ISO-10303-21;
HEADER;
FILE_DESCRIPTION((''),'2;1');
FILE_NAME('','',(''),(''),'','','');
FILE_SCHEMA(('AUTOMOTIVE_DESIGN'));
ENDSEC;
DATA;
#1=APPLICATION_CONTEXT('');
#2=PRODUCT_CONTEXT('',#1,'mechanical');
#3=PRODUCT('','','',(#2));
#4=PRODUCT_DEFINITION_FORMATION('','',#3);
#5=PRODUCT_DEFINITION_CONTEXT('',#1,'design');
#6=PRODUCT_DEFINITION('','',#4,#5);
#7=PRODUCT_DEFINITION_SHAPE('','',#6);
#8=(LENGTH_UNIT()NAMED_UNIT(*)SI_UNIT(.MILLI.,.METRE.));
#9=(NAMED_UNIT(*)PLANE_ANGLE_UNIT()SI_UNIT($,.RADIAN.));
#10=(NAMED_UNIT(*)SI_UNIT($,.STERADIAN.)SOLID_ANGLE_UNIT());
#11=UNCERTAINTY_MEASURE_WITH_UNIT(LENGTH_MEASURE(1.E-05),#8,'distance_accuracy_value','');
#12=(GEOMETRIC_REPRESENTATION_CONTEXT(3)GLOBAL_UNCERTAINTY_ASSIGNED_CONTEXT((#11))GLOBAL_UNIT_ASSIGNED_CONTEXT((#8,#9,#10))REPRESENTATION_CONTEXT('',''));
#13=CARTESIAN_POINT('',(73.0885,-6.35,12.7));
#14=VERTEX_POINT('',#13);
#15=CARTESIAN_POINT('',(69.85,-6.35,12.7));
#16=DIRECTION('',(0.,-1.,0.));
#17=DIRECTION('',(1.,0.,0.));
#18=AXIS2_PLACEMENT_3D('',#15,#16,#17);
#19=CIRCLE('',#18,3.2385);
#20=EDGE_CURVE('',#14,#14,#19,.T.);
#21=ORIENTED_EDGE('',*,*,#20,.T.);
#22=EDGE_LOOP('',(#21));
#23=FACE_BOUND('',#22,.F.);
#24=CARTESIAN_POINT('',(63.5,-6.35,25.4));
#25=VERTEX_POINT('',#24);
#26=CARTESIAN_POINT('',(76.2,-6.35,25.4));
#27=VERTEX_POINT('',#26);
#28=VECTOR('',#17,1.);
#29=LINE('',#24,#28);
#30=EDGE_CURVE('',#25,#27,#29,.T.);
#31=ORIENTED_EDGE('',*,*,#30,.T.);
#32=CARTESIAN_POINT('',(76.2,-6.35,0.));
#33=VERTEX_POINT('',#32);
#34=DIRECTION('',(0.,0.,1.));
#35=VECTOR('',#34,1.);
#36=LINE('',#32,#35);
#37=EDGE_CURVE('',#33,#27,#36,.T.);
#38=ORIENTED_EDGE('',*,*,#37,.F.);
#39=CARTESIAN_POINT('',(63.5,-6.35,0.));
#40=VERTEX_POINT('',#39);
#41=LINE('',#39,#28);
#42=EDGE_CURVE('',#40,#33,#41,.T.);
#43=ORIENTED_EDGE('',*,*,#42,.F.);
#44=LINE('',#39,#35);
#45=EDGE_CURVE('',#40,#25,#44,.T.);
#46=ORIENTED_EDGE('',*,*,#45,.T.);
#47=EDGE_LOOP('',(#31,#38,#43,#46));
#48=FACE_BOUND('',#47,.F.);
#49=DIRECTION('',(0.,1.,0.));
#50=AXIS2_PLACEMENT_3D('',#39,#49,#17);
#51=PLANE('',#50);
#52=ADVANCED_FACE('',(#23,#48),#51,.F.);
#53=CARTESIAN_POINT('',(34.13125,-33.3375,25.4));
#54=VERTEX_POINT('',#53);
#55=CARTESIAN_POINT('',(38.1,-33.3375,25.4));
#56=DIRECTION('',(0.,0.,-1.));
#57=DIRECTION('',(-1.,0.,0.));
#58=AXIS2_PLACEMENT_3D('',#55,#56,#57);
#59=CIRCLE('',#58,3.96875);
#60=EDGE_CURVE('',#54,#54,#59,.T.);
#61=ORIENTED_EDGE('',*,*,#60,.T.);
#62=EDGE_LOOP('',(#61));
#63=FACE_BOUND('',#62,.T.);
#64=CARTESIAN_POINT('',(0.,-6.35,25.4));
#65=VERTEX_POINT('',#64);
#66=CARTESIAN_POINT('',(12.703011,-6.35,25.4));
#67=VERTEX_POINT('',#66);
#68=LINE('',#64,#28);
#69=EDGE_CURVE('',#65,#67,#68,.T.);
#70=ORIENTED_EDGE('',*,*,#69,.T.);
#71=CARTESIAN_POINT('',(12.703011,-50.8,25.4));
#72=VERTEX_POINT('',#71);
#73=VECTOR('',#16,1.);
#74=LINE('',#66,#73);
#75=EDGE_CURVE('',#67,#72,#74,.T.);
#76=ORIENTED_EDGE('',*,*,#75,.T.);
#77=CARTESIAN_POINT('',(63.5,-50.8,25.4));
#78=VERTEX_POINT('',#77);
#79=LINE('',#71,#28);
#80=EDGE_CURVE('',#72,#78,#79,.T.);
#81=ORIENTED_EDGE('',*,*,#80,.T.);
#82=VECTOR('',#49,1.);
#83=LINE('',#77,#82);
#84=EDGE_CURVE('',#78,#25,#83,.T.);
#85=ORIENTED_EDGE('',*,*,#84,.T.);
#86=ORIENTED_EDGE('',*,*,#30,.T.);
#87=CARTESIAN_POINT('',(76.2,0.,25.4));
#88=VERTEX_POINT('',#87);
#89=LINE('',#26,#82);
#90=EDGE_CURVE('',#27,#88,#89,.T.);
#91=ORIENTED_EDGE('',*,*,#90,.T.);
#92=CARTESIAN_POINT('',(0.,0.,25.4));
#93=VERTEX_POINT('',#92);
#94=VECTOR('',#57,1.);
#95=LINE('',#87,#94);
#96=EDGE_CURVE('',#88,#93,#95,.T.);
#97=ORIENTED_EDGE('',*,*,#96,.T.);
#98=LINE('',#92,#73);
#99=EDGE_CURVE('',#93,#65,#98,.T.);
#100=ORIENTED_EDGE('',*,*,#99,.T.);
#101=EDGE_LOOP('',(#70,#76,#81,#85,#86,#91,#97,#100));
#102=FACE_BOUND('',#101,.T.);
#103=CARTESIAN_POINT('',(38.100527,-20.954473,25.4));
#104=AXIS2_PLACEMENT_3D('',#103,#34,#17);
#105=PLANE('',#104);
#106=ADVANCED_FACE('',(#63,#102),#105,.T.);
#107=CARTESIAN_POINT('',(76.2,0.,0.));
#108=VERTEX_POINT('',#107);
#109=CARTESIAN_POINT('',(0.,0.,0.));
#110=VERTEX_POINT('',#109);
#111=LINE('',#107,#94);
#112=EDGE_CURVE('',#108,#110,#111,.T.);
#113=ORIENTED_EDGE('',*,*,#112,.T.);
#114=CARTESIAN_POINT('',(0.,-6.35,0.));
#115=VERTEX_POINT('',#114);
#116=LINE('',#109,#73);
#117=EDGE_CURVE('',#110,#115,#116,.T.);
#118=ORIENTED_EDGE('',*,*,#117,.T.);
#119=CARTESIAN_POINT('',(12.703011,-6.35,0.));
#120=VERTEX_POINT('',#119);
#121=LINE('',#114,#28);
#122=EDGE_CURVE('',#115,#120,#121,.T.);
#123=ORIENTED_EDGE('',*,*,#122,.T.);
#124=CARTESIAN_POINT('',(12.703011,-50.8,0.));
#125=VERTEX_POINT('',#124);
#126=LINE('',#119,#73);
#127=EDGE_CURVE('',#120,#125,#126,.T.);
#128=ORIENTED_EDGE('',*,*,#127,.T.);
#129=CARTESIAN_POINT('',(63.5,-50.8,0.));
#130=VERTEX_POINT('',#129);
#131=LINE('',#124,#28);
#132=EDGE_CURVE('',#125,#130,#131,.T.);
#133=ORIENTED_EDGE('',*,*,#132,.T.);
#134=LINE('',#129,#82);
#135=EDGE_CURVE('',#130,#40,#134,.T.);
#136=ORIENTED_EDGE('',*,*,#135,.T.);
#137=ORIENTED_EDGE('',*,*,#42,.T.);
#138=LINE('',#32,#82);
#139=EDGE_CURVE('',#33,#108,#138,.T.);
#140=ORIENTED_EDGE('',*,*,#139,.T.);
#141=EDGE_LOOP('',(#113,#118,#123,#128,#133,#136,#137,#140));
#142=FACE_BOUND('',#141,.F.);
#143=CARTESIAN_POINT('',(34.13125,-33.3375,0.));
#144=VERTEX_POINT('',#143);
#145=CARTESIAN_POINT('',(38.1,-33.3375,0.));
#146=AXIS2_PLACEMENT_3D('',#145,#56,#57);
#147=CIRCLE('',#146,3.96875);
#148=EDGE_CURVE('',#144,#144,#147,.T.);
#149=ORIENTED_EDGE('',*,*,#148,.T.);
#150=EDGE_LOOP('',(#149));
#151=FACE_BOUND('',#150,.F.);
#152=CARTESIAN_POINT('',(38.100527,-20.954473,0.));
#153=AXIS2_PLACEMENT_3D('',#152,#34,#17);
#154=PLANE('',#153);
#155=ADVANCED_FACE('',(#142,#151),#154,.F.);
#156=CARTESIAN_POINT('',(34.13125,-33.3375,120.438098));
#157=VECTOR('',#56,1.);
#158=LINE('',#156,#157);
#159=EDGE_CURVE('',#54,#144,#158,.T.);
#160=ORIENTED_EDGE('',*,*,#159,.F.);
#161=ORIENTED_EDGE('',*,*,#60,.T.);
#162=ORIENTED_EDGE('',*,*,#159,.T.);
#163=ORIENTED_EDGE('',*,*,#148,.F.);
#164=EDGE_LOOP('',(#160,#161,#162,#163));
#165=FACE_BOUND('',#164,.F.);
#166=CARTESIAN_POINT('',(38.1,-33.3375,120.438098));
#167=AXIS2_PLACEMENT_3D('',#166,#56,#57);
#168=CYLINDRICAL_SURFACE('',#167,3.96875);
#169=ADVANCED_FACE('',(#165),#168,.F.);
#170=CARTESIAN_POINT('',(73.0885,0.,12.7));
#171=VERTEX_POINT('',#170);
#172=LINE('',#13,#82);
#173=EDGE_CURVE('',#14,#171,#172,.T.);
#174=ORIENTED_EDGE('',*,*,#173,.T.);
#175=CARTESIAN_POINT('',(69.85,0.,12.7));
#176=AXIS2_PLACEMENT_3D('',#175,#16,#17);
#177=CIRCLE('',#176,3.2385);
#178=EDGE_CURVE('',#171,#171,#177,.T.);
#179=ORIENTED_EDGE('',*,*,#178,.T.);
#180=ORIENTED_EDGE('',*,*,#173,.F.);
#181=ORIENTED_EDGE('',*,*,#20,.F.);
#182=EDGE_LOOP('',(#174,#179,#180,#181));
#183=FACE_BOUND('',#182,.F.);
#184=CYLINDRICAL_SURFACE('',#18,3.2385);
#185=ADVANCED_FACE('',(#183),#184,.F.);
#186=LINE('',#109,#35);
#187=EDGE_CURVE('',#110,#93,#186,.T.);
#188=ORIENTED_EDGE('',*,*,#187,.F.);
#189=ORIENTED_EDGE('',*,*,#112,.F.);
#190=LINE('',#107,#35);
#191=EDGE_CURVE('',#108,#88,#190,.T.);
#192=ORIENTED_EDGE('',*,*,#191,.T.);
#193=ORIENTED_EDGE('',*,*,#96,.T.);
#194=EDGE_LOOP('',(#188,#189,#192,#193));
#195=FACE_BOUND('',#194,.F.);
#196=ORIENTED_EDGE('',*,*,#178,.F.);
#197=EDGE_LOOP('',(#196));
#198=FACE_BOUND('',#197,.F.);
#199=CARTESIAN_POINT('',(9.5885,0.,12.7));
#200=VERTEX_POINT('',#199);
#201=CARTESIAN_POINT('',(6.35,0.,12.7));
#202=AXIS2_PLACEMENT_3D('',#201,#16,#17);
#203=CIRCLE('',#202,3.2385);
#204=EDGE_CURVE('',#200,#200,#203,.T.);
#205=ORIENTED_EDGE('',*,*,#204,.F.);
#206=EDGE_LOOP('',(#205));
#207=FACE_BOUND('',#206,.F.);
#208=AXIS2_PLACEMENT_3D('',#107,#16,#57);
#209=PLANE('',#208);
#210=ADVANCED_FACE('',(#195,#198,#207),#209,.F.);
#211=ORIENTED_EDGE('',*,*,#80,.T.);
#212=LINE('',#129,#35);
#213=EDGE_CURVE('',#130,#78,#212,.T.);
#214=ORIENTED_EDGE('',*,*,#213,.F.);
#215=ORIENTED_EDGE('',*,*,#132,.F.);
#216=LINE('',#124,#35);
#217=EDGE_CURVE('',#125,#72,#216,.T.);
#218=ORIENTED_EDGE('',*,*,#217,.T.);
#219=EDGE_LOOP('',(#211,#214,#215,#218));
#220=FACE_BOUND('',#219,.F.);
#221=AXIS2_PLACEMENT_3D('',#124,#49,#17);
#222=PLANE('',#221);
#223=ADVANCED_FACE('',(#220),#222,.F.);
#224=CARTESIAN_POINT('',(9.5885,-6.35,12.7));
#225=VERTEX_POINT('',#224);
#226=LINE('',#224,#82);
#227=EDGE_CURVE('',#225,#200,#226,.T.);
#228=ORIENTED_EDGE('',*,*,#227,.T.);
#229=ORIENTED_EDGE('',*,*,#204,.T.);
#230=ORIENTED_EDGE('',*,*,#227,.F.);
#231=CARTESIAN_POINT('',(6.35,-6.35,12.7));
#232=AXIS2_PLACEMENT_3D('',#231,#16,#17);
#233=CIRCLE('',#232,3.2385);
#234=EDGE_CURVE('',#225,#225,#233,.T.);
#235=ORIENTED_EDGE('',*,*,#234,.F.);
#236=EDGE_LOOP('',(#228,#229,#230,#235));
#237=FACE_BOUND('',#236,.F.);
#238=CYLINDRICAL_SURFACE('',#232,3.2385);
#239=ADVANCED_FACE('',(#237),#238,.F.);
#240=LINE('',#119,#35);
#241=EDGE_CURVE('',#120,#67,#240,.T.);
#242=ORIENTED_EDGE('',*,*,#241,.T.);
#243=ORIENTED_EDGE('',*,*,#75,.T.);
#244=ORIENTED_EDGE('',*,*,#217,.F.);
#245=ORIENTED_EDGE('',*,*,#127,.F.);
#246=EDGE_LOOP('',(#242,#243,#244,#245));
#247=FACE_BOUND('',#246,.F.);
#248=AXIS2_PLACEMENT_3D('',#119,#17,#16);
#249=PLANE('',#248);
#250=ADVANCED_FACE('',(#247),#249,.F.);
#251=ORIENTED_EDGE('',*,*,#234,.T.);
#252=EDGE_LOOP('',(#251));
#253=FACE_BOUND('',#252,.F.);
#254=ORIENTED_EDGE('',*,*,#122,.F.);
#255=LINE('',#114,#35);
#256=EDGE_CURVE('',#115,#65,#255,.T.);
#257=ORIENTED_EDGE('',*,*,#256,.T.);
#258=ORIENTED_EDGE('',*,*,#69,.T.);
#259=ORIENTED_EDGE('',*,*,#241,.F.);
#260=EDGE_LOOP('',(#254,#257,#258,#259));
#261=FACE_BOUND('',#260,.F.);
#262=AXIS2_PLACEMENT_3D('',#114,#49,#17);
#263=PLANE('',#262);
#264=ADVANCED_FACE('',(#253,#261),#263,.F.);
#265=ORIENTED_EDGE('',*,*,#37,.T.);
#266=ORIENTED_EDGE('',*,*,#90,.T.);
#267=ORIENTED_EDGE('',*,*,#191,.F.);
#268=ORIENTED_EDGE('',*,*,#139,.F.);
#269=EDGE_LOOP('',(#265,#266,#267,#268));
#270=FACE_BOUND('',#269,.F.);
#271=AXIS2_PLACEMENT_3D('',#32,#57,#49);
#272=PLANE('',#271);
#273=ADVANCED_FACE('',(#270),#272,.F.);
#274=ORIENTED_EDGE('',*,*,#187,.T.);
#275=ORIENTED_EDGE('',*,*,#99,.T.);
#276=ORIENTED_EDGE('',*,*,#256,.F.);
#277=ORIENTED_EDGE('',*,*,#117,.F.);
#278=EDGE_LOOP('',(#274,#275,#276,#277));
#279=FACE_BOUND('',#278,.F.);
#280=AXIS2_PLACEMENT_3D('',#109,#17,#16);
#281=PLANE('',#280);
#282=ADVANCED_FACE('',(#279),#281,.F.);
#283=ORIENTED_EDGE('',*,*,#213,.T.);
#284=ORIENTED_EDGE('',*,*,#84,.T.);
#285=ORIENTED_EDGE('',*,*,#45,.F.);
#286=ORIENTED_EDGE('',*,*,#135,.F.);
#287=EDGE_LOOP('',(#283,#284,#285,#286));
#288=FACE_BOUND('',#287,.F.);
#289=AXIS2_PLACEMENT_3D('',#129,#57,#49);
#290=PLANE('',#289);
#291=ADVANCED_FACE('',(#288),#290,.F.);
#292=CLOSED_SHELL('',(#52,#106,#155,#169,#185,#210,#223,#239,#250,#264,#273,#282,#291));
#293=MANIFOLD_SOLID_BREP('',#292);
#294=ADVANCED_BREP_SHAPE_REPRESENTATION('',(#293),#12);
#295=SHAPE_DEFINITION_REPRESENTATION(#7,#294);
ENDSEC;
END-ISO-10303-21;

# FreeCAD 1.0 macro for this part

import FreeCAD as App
import Part
import Sketcher

V = App.Vector
Q = App.Units.Quantity

doc = App.newDocument("Part")
body = doc.addObject("PartDesign::Body", "Body")

sketch1 = body.newObject("Sketcher::SketchObject", "Sketch")
sketch1.AttachmentSupport = (doc.getObject("XY_Plane"), [""])
sketch1.MapMode = "FlatFace"
sketch1.addGeometry([
    Part.LineSegment(V(76, 0, 0), V(0, 0, 0)),
    Part.LineSegment(V(0, 0, 0), V(0, -6, 0)),
    Part.LineSegment(V(0, -6, 0), V(13, -6, 0)),
    Part.LineSegment(V(13, -6, 0), V(13, -51, 0)),
    Part.LineSegment(V(13, -51, 0), V(64, -51, 0)),
    Part.LineSegment(V(64, -51, 0), V(64, -6, 0)),
    Part.LineSegment(V(64, -6, 0), V(76, -6, 0)),
    Part.LineSegment(V(76, -6, 0), V(76, 0, 0)),
], False)
sketch1.addConstraint([
    Sketcher.Constraint("Coincident", 0, 2, 1, 1),
    Sketcher.Constraint("Coincident", 1, 2, 2, 1),
    Sketcher.Constraint("Coincident", 2, 2, 3, 1),
    Sketcher.Constraint("Coincident", 3, 2, 4, 1),
    Sketcher.Constraint("Coincident", 4, 2, 5, 1),
    Sketcher.Constraint("Coincident", 5, 2, 6, 1),
    Sketcher.Constraint("Coincident", 6, 2, 7, 1),
    Sketcher.Constraint("Coincident", 7, 2, 0, 1),
    Sketcher.Constraint("Horizontal", 0),
    Sketcher.Constraint("Vertical", 1),
    Sketcher.Constraint("Horizontal", 2),
    Sketcher.Constraint("Vertical", 3),
    Sketcher.Constraint("Horizontal", 4),
    Sketcher.Constraint("Vertical", 5),
    Sketcher.Constraint("Horizontal", 6),
    Sketcher.Constraint("Vertical", 7),
    Sketcher.Constraint("Coincident", 0, 2, -1, 1),
    Sketcher.Constraint("Horizontal", 2, 2, 5, 2),
    Sketcher.Constraint("DistanceX", 0, 2, 0, 1, Q("3 in")),
    Sketcher.Constraint("DistanceX", 6, 1, 6, 2, Q("0.5 in")),
    Sketcher.Constraint("DistanceY", 3, 2, -1, 1, Q("2 in")),
    Sketcher.Constraint("DistanceY", 1, 2, 1, 1, Q("0.25 in")),
    Sketcher.Constraint("DistanceX", 2, 1, 2, 2, Q("12.703011 mm")),
])
pad1 = body.newObject("PartDesign::Pad", "Pad")
pad1.Profile = sketch1
pad1.Length = Q("1 in")

sketch2 = body.newObject("Sketcher::SketchObject", "Sketch001")
sketch2.AttachmentSupport = (doc.getObject("XZ_Plane"), [""])
sketch2.MapMode = "FlatFace"
sketch2.AttachmentOffset = App.Placement(V(0, 0, 0.25 * 25.4), App.Rotation())
sketch2.addGeometry(Part.Circle(V(6.3, 12.7, 0), V(0, 0, 1), 3.2), False)
sketch2.addConstraint([
    Sketcher.Constraint("Diameter", 0, Q("0.255 in")),
    Sketcher.Constraint("DistanceY", -1, 1, 0, 3, Q("0.5 in")),
    Sketcher.Constraint("DistanceX", -1, 1, 0, 3, Q("0.25 in")),
])
pocket1 = body.newObject("PartDesign::Pocket", "Pocket")
pocket1.Profile = sketch2
pocket1.Length = Q("1 in")

sketch3 = body.newObject("Sketcher::SketchObject", "Sketch002")
sketch3.AttachmentSupport = (doc.getObject("XZ_Plane"), [""])
sketch3.MapMode = "FlatFace"
sketch3.AttachmentOffset = App.Placement(V(0, 0, 0.25 * 25.4), App.Rotation())
sketch3.addGeometry(Part.Circle(V(69.8, 12.7, 0), V(0, 0, 1), 3.2), False)
sketch3.addConstraint([
    Sketcher.Constraint("Diameter", 0, Q("0.255 in")),
    Sketcher.Constraint("DistanceY", -1, 1, 0, 3, Q("0.5 in")),
    Sketcher.Constraint("DistanceX", -1, 1, 0, 3, Q("2.75 in")),
])
pocket2 = body.newObject("PartDesign::Pocket", "Pocket001")
pocket2.Profile = sketch3
pocket2.Length = Q("1 in")

sketch4 = body.newObject("Sketcher::SketchObject", "Sketch003")
sketch4.AttachmentSupport = (doc.getObject("XY_Plane"), [""])
sketch4.MapMode = "FlatFace"
sketch4.AttachmentOffset = App.Placement(V(0, 0, 1 * 25.4), App.Rotation())
sketch4.addGeometry(Part.Circle(V(38.1, -33.3, 0), V(0, 0, 1), 4), False)
sketch4.addConstraint([
    Sketcher.Constraint("Diameter", 0, Q("0.3125 in")),
    Sketcher.Constraint("DistanceX", -1, 1, 0, 3, Q("1.5 in")),
    Sketcher.Constraint("DistanceY", 0, 3, -1, 1, Q("1.3125 in")),
])
doc.recompute()
hole = body.newObject("PartDesign::Hole", "Hole")
hole.Profile = sketch4
hole.ThreadType = "None"
hole.Diameter = Q("0.3125 in")
hole.DepthType = "ThroughAll"

doc.recompute()
